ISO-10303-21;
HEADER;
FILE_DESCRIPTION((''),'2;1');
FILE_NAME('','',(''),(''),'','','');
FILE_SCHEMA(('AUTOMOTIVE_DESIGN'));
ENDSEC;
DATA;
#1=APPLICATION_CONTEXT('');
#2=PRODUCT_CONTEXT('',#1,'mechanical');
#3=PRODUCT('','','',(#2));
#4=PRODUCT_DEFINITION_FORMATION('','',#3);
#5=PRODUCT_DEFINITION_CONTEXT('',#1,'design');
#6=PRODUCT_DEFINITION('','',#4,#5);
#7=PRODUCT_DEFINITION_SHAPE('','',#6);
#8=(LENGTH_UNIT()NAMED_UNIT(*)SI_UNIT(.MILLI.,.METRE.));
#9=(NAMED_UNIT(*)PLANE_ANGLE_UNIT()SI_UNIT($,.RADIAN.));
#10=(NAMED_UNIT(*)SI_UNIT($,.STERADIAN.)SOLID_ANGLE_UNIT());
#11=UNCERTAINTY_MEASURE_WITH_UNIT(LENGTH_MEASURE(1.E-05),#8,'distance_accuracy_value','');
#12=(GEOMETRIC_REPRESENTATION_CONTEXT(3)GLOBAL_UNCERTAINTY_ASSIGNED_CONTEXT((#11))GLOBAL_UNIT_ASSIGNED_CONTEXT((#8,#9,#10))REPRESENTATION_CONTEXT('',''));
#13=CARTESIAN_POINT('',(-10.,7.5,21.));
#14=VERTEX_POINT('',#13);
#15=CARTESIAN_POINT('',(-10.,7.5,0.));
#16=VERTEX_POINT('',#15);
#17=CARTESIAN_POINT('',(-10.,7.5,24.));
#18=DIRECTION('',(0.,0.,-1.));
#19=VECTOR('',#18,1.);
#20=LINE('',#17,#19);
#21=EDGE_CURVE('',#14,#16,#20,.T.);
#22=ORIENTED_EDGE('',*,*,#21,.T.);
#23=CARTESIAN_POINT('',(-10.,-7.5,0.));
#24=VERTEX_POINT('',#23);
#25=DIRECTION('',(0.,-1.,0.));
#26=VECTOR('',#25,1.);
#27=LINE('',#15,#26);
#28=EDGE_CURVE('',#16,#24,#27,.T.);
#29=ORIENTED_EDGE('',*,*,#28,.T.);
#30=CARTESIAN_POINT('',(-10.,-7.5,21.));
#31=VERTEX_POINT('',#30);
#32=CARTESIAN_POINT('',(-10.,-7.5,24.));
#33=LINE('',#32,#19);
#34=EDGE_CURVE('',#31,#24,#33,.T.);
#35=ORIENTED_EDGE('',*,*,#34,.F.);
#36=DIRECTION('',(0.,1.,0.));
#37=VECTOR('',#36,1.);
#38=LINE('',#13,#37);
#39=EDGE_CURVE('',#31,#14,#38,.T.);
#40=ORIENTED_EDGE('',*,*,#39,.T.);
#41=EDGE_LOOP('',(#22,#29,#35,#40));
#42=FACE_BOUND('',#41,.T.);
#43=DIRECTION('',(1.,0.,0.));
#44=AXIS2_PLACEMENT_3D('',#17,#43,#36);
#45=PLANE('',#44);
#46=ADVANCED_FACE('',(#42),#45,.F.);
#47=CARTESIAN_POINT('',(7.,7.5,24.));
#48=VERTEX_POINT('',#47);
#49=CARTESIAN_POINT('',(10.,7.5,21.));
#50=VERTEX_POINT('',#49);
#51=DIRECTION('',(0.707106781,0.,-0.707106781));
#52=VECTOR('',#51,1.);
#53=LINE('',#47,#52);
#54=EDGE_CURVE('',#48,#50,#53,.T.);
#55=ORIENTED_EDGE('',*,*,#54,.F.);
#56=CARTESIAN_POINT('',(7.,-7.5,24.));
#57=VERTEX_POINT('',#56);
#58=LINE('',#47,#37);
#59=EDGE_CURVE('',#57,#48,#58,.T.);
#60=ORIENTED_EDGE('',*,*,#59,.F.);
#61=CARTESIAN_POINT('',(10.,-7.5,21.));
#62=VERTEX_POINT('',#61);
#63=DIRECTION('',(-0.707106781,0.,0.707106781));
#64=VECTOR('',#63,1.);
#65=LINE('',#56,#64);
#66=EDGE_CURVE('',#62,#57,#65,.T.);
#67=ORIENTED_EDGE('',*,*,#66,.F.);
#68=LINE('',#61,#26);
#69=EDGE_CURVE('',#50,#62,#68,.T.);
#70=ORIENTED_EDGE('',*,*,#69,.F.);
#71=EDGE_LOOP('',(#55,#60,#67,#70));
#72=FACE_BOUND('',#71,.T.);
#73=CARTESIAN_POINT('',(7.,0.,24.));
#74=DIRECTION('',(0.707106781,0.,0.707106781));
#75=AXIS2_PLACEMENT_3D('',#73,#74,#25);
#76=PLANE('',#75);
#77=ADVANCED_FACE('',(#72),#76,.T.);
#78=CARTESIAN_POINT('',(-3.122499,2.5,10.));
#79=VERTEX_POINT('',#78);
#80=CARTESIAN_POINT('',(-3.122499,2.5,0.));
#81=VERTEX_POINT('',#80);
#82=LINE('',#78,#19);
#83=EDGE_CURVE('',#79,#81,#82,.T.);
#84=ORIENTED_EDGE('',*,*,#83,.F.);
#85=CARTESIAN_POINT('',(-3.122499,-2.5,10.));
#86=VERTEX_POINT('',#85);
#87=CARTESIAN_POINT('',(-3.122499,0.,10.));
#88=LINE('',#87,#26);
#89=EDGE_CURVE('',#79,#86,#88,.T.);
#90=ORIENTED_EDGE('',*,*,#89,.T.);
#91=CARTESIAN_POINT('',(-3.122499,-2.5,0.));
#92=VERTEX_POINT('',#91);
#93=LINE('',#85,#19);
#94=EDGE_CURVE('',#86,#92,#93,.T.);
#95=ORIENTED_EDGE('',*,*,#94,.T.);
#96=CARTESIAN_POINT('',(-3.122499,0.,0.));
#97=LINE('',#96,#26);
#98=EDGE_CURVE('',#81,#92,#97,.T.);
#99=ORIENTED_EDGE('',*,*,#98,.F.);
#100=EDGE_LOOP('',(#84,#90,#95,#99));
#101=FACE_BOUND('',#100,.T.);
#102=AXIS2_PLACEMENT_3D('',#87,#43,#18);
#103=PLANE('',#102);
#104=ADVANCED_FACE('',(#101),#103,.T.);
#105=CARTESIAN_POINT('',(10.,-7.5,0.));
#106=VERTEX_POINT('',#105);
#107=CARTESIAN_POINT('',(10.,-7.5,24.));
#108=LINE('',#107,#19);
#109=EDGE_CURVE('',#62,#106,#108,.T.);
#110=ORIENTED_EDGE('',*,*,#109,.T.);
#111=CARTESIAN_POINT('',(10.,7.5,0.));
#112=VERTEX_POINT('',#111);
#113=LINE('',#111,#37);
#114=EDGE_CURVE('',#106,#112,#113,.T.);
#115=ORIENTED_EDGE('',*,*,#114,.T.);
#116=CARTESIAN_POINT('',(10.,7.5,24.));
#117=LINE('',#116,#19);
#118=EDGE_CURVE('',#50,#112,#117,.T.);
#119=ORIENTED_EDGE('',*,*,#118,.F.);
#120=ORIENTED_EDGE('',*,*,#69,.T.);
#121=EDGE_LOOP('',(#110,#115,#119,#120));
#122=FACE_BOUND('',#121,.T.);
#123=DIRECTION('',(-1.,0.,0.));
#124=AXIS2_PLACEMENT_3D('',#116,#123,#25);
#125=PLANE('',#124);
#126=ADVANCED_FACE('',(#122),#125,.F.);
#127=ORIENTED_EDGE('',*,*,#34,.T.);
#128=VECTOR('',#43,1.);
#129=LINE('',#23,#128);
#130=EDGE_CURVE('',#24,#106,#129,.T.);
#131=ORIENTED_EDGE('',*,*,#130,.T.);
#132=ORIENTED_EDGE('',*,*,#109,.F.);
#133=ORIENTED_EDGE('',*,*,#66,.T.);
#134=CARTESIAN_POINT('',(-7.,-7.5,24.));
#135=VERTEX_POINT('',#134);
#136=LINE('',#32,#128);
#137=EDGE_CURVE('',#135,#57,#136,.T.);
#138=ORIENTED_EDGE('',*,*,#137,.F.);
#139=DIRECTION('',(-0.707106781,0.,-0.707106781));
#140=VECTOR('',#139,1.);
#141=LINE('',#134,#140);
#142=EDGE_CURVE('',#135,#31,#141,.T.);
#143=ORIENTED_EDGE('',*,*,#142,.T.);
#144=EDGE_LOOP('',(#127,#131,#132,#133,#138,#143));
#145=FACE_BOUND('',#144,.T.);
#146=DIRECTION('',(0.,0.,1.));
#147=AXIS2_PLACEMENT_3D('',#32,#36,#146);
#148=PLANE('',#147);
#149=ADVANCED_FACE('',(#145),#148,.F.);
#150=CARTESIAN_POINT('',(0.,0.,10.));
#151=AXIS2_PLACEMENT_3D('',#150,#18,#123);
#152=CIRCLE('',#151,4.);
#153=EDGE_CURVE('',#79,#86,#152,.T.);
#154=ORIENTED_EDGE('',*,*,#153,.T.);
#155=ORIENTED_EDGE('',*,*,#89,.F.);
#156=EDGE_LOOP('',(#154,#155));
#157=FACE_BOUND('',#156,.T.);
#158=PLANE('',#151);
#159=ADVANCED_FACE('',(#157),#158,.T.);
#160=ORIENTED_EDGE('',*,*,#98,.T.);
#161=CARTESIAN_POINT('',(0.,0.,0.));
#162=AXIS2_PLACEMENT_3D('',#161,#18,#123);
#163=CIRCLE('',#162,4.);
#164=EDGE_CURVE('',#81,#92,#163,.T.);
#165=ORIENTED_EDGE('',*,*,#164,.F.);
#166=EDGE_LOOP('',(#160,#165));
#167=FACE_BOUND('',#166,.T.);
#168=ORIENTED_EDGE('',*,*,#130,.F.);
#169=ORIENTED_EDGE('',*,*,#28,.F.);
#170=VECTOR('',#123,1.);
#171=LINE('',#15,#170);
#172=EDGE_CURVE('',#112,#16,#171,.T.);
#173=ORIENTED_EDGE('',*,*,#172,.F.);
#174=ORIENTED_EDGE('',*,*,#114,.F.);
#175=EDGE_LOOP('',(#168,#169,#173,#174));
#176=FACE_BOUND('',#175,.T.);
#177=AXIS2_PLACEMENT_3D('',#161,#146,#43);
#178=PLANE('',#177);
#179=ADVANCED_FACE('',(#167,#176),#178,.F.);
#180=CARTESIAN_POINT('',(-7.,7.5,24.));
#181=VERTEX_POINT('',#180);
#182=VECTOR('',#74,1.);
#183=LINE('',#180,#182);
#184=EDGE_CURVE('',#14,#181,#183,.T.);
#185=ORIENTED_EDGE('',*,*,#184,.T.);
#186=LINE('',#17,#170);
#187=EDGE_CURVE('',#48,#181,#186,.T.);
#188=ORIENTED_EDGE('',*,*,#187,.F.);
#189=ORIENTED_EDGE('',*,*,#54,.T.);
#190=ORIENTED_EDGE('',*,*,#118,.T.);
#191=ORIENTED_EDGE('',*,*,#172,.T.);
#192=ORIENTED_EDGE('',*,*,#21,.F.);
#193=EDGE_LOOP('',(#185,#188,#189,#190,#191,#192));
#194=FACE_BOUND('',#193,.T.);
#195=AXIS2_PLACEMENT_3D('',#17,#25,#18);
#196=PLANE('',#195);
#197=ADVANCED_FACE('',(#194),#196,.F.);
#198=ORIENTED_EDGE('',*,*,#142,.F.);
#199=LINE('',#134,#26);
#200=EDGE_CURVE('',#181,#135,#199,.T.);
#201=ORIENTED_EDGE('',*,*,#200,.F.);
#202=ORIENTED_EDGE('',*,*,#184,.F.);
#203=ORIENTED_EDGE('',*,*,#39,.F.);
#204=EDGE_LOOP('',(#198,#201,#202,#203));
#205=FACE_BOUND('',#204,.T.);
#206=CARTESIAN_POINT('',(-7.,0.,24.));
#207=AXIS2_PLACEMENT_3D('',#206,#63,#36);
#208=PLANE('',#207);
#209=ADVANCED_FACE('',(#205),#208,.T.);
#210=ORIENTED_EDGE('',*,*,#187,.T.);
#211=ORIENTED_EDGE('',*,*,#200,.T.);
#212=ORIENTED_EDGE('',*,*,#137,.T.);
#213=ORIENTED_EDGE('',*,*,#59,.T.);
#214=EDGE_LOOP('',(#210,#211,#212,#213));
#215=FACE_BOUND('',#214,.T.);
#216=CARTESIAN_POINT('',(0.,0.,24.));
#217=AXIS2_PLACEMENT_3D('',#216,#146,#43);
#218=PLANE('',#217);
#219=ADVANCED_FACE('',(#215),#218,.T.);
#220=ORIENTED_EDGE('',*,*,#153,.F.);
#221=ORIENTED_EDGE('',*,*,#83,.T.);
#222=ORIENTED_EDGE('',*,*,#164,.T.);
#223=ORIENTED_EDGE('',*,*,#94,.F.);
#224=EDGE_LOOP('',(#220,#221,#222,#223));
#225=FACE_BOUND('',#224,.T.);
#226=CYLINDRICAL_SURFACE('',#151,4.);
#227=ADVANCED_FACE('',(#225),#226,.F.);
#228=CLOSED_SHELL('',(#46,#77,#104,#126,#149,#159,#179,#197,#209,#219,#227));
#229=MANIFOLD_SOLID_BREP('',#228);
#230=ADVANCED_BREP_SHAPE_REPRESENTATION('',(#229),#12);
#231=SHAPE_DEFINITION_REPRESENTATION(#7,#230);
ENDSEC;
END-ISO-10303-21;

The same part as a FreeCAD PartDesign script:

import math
import FreeCAD as App
import Part
import Sketcher
from FreeCAD import Vector
Q = App.Units.Quantity


def edges_at(feature, points):
    """Names of the edges that pass closest to the given points."""
    edges = feature.Shape.Edges
    near = lambda p: min(range(len(edges)), key=lambda i: edges[i].distToShape(Part.Vertex(*p))[0])
    return sorted({f"Edge{near(p) + 1}" for p in points})

doc = App.newDocument("Part")
body = doc.addObject("PartDesign::Body", "Body")

sketch1 = body.newObject("Sketcher::SketchObject", "Sketch")
sketch1.AttachmentSupport = (doc.getObject("XY_Plane"), [""])
sketch1.MapMode = "FlatFace"
sketch1.addGeometry([
    Part.LineSegment(Vector(-10, 7.5, 0), Vector(-10, -7.5, 0)),
    Part.LineSegment(Vector(-10, -7.5, 0), Vector(10, -7.5, 0)),
    Part.LineSegment(Vector(10, -7.5, 0), Vector(10, 7.5, 0)),
    Part.LineSegment(Vector(10, 7.5, 0), Vector(-10, 7.5, 0)),
], False)
sketch1.addConstraint([
    Sketcher.Constraint("Coincident", 0, 2, 1, 1),
    Sketcher.Constraint("Coincident", 1, 2, 2, 1),
    Sketcher.Constraint("Coincident", 2, 2, 3, 1),
    Sketcher.Constraint("Coincident", 3, 2, 0, 1),
    Sketcher.Constraint("Vertical", 0),
    Sketcher.Constraint("Horizontal", 1),
    Sketcher.Constraint("Vertical", 2),
    Sketcher.Constraint("Horizontal", 3),
    Sketcher.Constraint("Symmetric", 0, 2, 2, 2, -1, 1),
    Sketcher.Constraint("DistanceX", 1, 1, 1, 2, Q("20 mm")),
    Sketcher.Constraint("DistanceY", 0, 2, 0, 1, Q("15 mm")),
])
pad1 = body.newObject("PartDesign::Pad", "Pad")
pad1.Profile = sketch1
pad1.Length = 24
doc.recompute()

chamfer = body.newObject("PartDesign::Chamfer", "Chamfer")
chamfer.Base = (pad1, edges_at(pad1, [(10, 0, 24)]))
chamfer.Size = 3
doc.recompute()

chamfer2 = body.newObject("PartDesign::Chamfer", "Chamfer001")
chamfer2.Base = (chamfer, edges_at(chamfer, [(-10, 0, 24)]))
chamfer2.Size = 3

sketch2 = body.newObject("Sketcher::SketchObject", "Sketch001")
sketch2.AttachmentSupport = (doc.getObject("XY_Plane"), [""])
sketch2.MapMode = "FlatFace"
sketch2.addGeometry([
    Part.LineSegment(Vector(-3.122499, -2.5, 0), Vector(-3.122499, 2.5, 0)),
    Part.ArcOfCircle(Part.Circle(Vector(0, 0, 0), Vector(0, 0, 1), 4), math.radians(-141.317813), math.radians(141.317813)),
], False)
sketch2.addConstraint([
    Sketcher.Constraint("Coincident", 0, 1, 1, 1),
    Sketcher.Constraint("Coincident", 1, 2, 0, 2),
    Sketcher.Constraint("Vertical", 0),
    Sketcher.Constraint("Coincident", 1, 3, -1, 1),
    Sketcher.Constraint("Radius", 1, Q("4 mm")),
    Sketcher.Constraint("DistanceY", 0, 1, 0, 2, Q("5 mm")),
])
pocket1 = body.newObject("PartDesign::Pocket", "Pocket")
pocket1.Profile = sketch2
pocket1.Length = 10
pocket1.Reversed = True

doc.recompute()
